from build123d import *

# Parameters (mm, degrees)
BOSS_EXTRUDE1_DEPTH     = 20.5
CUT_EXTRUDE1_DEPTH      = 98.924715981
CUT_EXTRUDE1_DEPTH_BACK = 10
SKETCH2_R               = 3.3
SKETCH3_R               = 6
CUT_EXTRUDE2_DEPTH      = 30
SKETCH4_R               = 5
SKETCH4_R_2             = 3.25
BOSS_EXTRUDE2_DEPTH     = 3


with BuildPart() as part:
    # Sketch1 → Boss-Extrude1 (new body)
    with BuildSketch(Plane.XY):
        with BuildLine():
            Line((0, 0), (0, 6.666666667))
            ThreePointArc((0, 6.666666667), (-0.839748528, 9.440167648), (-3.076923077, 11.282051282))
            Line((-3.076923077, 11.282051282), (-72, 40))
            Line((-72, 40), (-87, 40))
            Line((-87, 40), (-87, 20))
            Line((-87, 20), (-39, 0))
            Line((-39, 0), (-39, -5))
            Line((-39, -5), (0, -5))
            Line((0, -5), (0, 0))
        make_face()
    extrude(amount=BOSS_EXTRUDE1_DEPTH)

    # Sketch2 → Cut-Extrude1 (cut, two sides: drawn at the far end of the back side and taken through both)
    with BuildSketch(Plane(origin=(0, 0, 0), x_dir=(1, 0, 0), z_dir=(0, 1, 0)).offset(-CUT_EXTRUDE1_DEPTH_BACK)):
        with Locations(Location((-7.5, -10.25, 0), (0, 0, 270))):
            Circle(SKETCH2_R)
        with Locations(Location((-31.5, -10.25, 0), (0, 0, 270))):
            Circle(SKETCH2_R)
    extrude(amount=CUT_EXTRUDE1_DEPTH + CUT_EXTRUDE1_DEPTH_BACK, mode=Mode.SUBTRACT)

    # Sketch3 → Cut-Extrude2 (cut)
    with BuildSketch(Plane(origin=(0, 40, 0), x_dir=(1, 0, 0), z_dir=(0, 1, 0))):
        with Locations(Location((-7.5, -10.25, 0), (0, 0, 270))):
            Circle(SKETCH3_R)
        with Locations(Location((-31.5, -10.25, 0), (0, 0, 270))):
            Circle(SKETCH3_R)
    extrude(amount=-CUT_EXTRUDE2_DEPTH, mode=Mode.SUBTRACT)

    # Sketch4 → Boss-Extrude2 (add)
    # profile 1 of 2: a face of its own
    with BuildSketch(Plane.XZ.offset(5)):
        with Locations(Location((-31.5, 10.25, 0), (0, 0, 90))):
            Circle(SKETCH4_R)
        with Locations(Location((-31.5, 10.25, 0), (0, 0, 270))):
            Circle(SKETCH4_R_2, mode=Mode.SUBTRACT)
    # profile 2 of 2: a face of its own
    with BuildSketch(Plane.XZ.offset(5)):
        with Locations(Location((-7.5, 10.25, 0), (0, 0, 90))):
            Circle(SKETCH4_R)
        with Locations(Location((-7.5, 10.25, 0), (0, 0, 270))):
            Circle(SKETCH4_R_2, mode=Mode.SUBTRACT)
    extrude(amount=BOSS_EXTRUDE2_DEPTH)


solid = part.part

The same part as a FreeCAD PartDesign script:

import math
import FreeCAD as App
import Part
import Sketcher

V = App.Vector

doc = App.newDocument("Part")
body = doc.addObject("PartDesign::Body", "Body")

sketch1 = body.newObject("Sketcher::SketchObject", "Sketch")
sketch1.AttachmentSupport = (doc.getObject("XY_Plane"), [""])
sketch1.MapMode = "FlatFace"
sketch1.addGeometry([
    Part.ArcOfCircle(Part.Circle(V(-5, 6.7, 0), V(0, 0, 1), 5), math.radians(0), math.radians(67)),
    Part.LineSegment(V(-3.1, 11.3, 0), V(-72, 40, 0)),
    Part.LineSegment(V(-72, 40, 0), V(-87, 40, 0)),
    Part.LineSegment(V(-87, 40, 0), V(-87, 20, 0)),
    Part.LineSegment(V(-87, 20, 0), V(-39, 0, 0)),
    Part.LineSegment(V(-39, 0, 0), V(-39, -5, 0)),
    Part.LineSegment(V(-39, -5, 0), V(0, -5, 0)),
    Part.LineSegment(V(0, -5, 0), V(0, 6.7, 0)),
], False)
sketch1.addConstraint([
    Sketcher.Constraint("Tangent", 0, 2, 1, 1),
    Sketcher.Constraint("Coincident", 1, 2, 2, 1),
    Sketcher.Constraint("Coincident", 2, 2, 3, 1),
    Sketcher.Constraint("Coincident", 3, 2, 4, 1),
    Sketcher.Constraint("Coincident", 4, 2, 5, 1),
    Sketcher.Constraint("Coincident", 5, 2, 6, 1),
    Sketcher.Constraint("Coincident", 6, 2, 7, 1),
    Sketcher.Constraint("Tangent", 7, 2, 0, 1),
    Sketcher.Constraint("Horizontal", 2),
    Sketcher.Constraint("Vertical", 3),
    Sketcher.Constraint("Vertical", 5),
    Sketcher.Constraint("Horizontal", 6),
    Sketcher.Constraint("Vertical", 7),
    Sketcher.Constraint("PointOnObject", 4, 2, -1),
    Sketcher.Constraint("PointOnObject", 6, 2, -2),
    Sketcher.Constraint("Parallel", 1, 4),
    Sketcher.Constraint("Radius", 0, 5.0),
    Sketcher.Constraint("DistanceX", 2, 2, 2, 1, 15.0),
    Sketcher.Constraint("DistanceX", 6, 1, 6, 2, 39.0),
    Sketcher.Constraint("DistanceY", 3, 2, 3, 1, 20.0),
    Sketcher.Constraint("DistanceY", 5, 2, 5, 1, 5.0),
    Sketcher.Constraint("Distance", 4, 52.0),
    Sketcher.Constraint("DistanceX", 1, 2, -1, 1, 72.0),
])
pad1 = body.newObject("PartDesign::Pad", "Pad")
pad1.Profile = sketch1
pad1.Length = 20.5

sketch2 = body.newObject("Sketcher::SketchObject", "Sketch001")
sketch2.AttachmentSupport = (doc.getObject("XZ_Plane"), [""])
sketch2.MapMode = "FlatFace"
sketch2.addGeometry([
    Part.Circle(V(-7.5, 10.2, 0), V(0, 0, 1), 3.3),
    Part.Circle(V(-31.5, 10.2, 0), V(0, 0, 1), 3.3),
], False)
sketch2.addConstraint([
    Sketcher.Constraint("Equal", 0, 1),
    Sketcher.Constraint("Horizontal", 0, 3, 1, 3),
    Sketcher.Constraint("Diameter", 0, 6.6),
    Sketcher.Constraint("DistanceX", 1, 3, 0, 3, 24.0),
    Sketcher.Constraint("DistanceX", 0, 3, -1, 1, 7.5),
    Sketcher.Constraint("DistanceY", -1, 1, 0, 3, 10.25),
])
pocket1 = body.newObject("PartDesign::Pocket", "Pocket")
pocket1.Profile = sketch2
pocket1.Type = "ThroughAll"
pocket1.Midplane = True

sketch3 = body.newObject("Sketcher::SketchObject", "Sketch002")
sketch3.AttachmentSupport = (doc.getObject("XZ_Plane"), [""])
sketch3.MapMode = "FlatFace"
sketch3.AttachmentOffset = App.Placement(V(0, 0, -40), App.Rotation())
sketch3.addGeometry([
    Part.Circle(V(-8, 10, 0), V(0, 0, 1), 6),
    Part.Circle(V(-32, 10, 0), V(0, 0, 1), 6),
], False)
sketch3.addConstraint([
    Sketcher.Constraint("Equal", 0, 1),
    Sketcher.Constraint("Horizontal", 0, 3, 1, 3),
    Sketcher.Constraint("Diameter", 0, 12.0),
    Sketcher.Constraint("DistanceX", 1, 3, 0, 3, 24.0),
    Sketcher.Constraint("DistanceX", 0, 3, -1, 1, 7.5),
    Sketcher.Constraint("DistanceY", -1, 1, 0, 3, 10.25),
])
pocket2 = body.newObject("PartDesign::Pocket", "Pocket001")
pocket2.Profile = sketch3
pocket2.Length = 30
pocket2.Reversed = True

sketch4 = body.newObject("Sketcher::SketchObject", "Sketch003")
sketch4.AttachmentSupport = (doc.getObject("XZ_Plane"), [""])
sketch4.MapMode = "FlatFace"
sketch4.AttachmentOffset = App.Placement(V(0, 0, 5), App.Rotation())
sketch4.addGeometry([
    Part.Circle(V(-31.5, 10.2, 0), V(0, 0, 1), 5),
    Part.Circle(V(-31.5, 10.2, 0), V(0, 0, 1), 3.2),
    Part.Circle(V(-7.5, 10.2, 0), V(0, 0, 1), 5),
    Part.Circle(V(-7.5, 10.2, 0), V(0, 0, 1), 3.2),
], False)
sketch4.addConstraint([
    Sketcher.Constraint("Coincident", 1, 3, 0, 3),
    Sketcher.Constraint("Coincident", 3, 3, 2, 3),
    Sketcher.Constraint("Equal", 0, 2),
    Sketcher.Constraint("Equal", 1, 3),
    Sketcher.Constraint("Horizontal", 1, 3, 2, 3),
    Sketcher.Constraint("Diameter", 0, 10.0),
    Sketcher.Constraint("Diameter", 1, 6.5),
    Sketcher.Constraint("DistanceX", 0, 3, 2, 3, 24.0),
    Sketcher.Constraint("DistanceX", 0, 3, -1, 1, 31.5),
    Sketcher.Constraint("DistanceY", -1, 1, 0, 3, 10.25),
])
pad2 = body.newObject("PartDesign::Pad", "Pad001")
pad2.Profile = sketch4
pad2.Length = 3

doc.recompute()
